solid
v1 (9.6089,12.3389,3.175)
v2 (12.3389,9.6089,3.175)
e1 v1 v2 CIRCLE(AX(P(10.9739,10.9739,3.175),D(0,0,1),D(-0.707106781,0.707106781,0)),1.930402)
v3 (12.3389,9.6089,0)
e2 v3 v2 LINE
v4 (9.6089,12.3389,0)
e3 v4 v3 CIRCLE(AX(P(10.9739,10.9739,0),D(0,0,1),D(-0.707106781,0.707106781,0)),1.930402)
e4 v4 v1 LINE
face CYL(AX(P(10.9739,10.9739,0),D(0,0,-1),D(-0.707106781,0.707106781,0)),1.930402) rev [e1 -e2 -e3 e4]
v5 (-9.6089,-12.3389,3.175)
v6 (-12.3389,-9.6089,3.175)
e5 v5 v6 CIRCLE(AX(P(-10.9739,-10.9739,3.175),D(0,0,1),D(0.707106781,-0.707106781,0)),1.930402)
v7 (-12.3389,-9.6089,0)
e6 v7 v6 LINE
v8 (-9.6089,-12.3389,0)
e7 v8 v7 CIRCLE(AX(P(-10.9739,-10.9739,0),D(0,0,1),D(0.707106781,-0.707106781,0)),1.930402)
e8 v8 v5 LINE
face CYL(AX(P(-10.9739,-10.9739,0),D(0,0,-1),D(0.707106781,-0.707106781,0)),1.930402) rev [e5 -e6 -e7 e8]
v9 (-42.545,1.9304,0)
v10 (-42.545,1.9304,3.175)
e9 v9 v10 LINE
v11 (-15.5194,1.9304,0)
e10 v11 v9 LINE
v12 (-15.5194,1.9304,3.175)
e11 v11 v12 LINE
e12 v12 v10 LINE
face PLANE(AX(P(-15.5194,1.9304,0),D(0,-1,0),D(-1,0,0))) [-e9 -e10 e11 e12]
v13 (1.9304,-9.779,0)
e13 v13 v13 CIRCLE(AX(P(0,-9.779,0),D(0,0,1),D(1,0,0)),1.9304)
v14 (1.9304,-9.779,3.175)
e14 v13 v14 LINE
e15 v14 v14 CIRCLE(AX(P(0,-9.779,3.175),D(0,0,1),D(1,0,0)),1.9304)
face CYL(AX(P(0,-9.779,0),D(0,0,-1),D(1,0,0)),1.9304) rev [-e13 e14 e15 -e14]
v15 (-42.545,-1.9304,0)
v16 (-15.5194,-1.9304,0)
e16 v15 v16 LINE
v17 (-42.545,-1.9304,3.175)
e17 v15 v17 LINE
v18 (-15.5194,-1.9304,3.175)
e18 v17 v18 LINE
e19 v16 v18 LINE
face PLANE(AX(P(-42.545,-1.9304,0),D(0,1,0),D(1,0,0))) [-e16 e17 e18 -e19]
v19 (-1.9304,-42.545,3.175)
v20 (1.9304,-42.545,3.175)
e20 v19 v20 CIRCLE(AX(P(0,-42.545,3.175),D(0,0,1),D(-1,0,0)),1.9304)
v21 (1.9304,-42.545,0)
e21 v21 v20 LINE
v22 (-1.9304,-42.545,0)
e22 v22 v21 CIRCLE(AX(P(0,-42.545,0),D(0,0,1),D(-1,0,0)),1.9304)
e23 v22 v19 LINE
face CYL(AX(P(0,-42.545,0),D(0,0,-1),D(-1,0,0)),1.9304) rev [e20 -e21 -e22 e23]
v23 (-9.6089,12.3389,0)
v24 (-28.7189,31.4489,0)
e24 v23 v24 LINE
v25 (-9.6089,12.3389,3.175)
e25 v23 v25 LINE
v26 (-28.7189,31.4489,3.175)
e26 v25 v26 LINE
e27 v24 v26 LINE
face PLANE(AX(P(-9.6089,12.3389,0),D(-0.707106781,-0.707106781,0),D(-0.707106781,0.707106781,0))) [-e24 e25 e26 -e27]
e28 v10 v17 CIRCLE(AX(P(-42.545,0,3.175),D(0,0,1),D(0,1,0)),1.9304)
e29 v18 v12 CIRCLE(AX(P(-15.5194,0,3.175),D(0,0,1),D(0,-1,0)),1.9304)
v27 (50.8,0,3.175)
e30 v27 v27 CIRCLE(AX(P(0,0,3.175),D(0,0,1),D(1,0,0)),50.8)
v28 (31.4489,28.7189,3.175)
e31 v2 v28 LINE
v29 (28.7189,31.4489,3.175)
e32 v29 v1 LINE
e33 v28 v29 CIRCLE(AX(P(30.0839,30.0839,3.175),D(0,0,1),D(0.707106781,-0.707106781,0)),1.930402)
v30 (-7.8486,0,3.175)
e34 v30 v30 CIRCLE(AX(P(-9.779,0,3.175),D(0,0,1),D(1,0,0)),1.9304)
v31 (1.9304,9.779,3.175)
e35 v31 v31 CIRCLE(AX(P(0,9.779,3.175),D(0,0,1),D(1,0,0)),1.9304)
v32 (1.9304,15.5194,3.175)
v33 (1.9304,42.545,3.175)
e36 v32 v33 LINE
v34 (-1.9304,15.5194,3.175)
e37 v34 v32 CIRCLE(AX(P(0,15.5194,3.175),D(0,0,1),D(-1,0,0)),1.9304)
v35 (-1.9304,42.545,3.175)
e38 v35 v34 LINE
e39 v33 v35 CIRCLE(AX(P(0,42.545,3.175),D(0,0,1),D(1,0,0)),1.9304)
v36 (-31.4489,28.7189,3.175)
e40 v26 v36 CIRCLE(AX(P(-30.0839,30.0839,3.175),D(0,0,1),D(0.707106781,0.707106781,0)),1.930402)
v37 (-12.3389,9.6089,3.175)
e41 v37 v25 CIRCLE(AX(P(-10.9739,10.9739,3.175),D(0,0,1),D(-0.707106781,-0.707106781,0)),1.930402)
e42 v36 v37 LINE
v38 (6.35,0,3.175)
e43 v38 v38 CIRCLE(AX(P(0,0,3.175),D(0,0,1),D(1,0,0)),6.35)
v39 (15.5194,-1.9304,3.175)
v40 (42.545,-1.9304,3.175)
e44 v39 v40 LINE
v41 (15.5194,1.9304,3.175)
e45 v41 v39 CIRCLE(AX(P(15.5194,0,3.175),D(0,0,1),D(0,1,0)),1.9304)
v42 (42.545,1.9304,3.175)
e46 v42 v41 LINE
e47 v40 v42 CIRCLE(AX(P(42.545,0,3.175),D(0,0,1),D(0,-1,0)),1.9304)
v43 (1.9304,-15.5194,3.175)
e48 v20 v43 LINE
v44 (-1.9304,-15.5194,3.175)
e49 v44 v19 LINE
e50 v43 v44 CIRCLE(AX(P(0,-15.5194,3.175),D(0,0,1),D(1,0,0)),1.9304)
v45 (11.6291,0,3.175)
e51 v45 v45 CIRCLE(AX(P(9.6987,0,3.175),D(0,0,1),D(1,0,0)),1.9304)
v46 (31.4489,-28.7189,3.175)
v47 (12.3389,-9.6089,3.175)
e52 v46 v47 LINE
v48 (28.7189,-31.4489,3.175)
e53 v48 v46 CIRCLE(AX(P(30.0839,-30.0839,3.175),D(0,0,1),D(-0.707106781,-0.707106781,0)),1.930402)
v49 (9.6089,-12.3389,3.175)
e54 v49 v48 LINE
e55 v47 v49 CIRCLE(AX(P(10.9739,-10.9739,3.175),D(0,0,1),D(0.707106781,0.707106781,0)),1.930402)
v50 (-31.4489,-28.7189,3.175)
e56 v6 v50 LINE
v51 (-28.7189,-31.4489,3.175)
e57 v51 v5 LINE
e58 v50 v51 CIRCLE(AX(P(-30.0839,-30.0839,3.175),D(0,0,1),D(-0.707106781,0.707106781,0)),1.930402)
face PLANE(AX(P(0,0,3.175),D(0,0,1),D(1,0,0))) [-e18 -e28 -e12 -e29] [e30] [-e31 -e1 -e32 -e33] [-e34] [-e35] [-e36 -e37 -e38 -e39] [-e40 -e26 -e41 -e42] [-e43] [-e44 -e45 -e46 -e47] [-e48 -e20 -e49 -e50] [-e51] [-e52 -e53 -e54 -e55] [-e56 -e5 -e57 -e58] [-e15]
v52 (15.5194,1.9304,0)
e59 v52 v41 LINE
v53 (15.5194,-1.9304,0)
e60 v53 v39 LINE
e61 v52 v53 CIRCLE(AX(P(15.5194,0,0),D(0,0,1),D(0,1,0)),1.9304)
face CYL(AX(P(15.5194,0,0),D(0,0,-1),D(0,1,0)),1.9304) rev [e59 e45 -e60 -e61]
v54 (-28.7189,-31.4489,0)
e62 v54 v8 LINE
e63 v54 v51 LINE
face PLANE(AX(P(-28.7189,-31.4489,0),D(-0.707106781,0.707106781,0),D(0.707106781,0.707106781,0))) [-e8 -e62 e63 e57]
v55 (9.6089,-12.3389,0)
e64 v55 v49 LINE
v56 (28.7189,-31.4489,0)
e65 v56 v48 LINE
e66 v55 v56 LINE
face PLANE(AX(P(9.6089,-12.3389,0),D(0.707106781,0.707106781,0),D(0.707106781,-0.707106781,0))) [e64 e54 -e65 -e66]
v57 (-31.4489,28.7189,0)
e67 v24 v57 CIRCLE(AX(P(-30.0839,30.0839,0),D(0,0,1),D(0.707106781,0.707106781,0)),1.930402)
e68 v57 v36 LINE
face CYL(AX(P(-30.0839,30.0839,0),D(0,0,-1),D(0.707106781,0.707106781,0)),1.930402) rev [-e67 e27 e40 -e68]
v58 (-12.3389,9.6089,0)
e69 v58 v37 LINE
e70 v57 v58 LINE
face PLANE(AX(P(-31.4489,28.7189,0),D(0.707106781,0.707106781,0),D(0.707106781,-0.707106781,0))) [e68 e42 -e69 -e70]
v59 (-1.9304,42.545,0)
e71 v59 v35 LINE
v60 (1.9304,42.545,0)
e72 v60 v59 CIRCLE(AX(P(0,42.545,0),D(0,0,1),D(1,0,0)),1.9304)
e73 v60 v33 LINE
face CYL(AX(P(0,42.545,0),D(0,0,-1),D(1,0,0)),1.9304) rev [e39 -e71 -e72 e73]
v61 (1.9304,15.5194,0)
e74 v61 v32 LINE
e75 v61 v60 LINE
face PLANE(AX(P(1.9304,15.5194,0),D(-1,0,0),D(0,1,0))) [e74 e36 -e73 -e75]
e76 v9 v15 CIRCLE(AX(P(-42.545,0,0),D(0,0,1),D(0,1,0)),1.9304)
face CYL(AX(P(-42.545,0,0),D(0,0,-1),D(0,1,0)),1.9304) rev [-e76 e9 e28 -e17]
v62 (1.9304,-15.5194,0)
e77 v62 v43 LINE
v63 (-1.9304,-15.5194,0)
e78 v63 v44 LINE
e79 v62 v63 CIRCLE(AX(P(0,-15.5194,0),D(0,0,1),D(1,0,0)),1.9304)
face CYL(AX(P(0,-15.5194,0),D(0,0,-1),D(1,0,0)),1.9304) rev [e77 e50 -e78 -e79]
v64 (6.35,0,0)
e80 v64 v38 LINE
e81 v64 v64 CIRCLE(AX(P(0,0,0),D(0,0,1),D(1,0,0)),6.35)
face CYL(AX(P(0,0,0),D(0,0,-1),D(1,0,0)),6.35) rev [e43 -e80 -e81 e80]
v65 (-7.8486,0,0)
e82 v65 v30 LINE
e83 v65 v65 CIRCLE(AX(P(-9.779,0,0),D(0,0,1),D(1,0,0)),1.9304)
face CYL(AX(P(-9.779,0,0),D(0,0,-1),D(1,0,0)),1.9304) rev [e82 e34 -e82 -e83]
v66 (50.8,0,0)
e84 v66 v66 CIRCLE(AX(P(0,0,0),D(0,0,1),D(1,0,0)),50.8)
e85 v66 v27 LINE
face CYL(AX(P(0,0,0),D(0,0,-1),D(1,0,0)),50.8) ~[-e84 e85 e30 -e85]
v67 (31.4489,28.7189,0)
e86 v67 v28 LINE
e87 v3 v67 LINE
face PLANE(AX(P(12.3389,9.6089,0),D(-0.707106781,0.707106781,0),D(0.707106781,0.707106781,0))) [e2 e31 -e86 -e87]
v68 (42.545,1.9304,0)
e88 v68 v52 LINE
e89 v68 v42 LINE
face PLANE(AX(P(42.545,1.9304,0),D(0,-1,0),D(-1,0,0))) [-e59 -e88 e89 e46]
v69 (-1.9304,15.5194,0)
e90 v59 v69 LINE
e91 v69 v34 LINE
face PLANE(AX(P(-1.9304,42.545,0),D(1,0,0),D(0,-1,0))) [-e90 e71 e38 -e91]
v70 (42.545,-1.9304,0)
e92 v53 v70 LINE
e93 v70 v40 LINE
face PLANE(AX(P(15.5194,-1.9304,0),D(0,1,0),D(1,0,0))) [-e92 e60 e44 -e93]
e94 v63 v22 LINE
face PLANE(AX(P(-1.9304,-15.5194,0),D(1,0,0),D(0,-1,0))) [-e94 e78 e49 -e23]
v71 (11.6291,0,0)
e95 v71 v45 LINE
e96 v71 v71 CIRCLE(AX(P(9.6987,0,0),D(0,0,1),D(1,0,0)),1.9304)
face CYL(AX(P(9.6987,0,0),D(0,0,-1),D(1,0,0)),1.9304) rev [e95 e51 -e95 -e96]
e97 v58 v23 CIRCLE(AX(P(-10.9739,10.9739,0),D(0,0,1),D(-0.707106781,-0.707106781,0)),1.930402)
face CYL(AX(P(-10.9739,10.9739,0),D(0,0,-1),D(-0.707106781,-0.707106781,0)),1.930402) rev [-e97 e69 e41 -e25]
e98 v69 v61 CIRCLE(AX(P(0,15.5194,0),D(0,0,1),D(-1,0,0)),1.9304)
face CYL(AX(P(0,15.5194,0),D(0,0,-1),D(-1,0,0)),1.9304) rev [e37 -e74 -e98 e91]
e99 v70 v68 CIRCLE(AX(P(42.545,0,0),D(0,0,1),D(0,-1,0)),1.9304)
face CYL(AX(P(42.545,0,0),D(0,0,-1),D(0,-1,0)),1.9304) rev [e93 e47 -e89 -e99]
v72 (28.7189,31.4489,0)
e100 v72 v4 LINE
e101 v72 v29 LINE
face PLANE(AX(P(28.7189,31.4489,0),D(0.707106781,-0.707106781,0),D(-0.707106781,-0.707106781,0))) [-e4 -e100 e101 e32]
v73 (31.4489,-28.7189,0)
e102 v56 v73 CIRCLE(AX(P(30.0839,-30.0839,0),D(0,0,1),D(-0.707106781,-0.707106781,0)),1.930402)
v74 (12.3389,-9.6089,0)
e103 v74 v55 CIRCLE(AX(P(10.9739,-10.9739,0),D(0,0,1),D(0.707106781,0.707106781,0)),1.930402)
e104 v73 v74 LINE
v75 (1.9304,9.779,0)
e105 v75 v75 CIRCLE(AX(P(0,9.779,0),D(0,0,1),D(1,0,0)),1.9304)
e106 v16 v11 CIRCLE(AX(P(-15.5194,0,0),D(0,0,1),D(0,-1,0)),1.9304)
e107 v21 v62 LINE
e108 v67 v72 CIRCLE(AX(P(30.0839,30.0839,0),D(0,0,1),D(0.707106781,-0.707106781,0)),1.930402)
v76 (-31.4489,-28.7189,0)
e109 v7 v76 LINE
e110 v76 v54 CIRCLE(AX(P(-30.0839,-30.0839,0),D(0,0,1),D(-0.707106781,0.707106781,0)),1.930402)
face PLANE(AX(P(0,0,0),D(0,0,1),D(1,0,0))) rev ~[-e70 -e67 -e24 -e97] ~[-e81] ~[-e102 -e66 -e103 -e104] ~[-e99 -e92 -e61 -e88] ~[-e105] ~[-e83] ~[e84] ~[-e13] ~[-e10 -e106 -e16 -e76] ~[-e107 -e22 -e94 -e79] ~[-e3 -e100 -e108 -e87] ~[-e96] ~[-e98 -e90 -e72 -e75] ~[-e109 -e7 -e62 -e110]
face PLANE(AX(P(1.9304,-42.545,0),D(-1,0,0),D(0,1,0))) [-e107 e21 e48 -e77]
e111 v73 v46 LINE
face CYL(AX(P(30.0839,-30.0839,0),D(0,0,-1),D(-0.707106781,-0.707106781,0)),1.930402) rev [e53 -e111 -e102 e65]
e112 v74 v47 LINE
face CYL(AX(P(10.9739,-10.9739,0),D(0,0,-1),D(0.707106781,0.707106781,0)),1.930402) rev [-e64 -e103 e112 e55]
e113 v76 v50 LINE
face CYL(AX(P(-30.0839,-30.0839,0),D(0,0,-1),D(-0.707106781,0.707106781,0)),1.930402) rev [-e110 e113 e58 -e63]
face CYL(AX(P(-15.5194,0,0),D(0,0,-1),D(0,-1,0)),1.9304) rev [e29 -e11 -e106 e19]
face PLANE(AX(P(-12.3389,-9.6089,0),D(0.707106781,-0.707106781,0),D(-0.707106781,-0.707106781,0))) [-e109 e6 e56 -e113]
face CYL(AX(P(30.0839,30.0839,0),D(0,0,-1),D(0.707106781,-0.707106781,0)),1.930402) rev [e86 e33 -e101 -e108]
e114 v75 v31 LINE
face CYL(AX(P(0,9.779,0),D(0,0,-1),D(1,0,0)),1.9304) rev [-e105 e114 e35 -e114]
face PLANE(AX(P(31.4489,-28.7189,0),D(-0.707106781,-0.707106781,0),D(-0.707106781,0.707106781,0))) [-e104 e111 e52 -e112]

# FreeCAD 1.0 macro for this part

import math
import FreeCAD as App
import Part
import Sketcher

V = App.Vector
Q = App.Units.Quantity

doc = App.newDocument("Part")
body = doc.addObject("PartDesign::Body", "Body")

sketch1 = doc.addObject("Sketcher::SketchObject", "Sketch")
body.addObject(sketch1)
sketch1.AttachmentSupport = (doc.XY_Plane, [""])
sketch1.MapMode = "FlatFace"
sketch1.addGeometry(Part.Circle(V(0, 0, 0), V(0, 0, 1), 50.8), False)
sketch1.addGeometry(Part.LineSegment(V(-1.9, -42.5, 0), V(-1.9, -15.5, 0)), False)
sketch1.addGeometry(Part.ArcOfCircle(Part.Circle(V(0, -15.5, 0), V(0, 0, 1), 1.9), math.radians(0), math.radians(180)), False)
sketch1.addGeometry(Part.LineSegment(V(1.9, -15.5, 0), V(1.9, -42.5, 0)), False)
sketch1.addGeometry(Part.ArcOfCircle(Part.Circle(V(0, -42.5, 0), V(0, 0, 1), 1.9), math.radians(180), math.radians(360)), False)
sketch1.addGeometry(Part.LineSegment(V(-15.5, -1.9, 0), V(-42.5, -1.9, 0)), False)
sketch1.addGeometry(Part.ArcOfCircle(Part.Circle(V(-42.5, 0, 0), V(0, 0, 1), 1.9), math.radians(90), math.radians(270)), False)
sketch1.addGeometry(Part.LineSegment(V(-42.5, 1.9, 0), V(-15.5, 1.9, 0)), False)
sketch1.addGeometry(Part.ArcOfCircle(Part.Circle(V(-15.5, 0, 0), V(0, 0, 1), 1.9), math.radians(-90), math.radians(90)), False)
sketch1.addGeometry(Part.LineSegment(V(-9.6, -12.3, 0), V(-28.7, -31.4, 0)), False)
sketch1.addGeometry(Part.ArcOfCircle(Part.Circle(V(-30.1, -30.1, 0), V(0, 0, 1), 1.9), math.radians(135), math.radians(315)), False)
sketch1.addGeometry(Part.LineSegment(V(-31.4, -28.7, 0), V(-12.3, -9.6, 0)), False)
sketch1.addGeometry(Part.ArcOfCircle(Part.Circle(V(-11, -11, 0), V(0, 0, 1), 1.9), math.radians(-45), math.radians(135)), False)
sketch1.addGeometry(Part.Circle(V(0, -9.8, 0), V(0, 0, 1), 1.9), False)
sketch1.addGeometry(Part.Circle(V(-9.8, 0, 0), V(0, 0, 1), 1.9), False)
sketch1.addGeometry(Part.Circle(V(0, 0, 0), V(0, 0, 1), 6.3), False)
sketch1.addGeometry(Part.LineSegment(V(12.3, -9.6, 0), V(31.4, -28.7, 0)), False)
sketch1.addGeometry(Part.ArcOfCircle(Part.Circle(V(30.1, -30.1, 0), V(0, 0, 1), 1.9), math.radians(-135), math.radians(45)), False)
sketch1.addGeometry(Part.LineSegment(V(28.7, -31.4, 0), V(9.6, -12.3, 0)), False)
sketch1.addGeometry(Part.ArcOfCircle(Part.Circle(V(11, -11, 0), V(0, 0, 1), 1.9), math.radians(45), math.radians(225)), False)
sketch1.addGeometry(Part.Circle(V(9.7, 0, 0), V(0, 0, 1), 1.9), False)
sketch1.addGeometry(Part.LineSegment(V(15.5, 1.9, 0), V(42.5, 1.9, 0)), False)
sketch1.addGeometry(Part.ArcOfCircle(Part.Circle(V(42.5, 0, 0), V(0, 0, 1), 1.9), math.radians(-90), math.radians(90)), False)
sketch1.addGeometry(Part.LineSegment(V(42.5, -1.9, 0), V(15.5, -1.9, 0)), False)
sketch1.addGeometry(Part.ArcOfCircle(Part.Circle(V(15.5, 0, 0), V(0, 0, 1), 1.9), math.radians(90), math.radians(270)), False)
sketch1.addGeometry(Part.Circle(V(0, 9.8, 0), V(0, 0, 1), 1.9), False)
sketch1.addGeometry(Part.LineSegment(V(-12.3, 9.6, 0), V(-31.4, 28.7, 0)), False)
sketch1.addGeometry(Part.ArcOfCircle(Part.Circle(V(-30.1, 30.1, 0), V(0, 0, 1), 1.9), math.radians(45), math.radians(225)), False)
sketch1.addGeometry(Part.LineSegment(V(-28.7, 31.4, 0), V(-9.6, 12.3, 0)), False)
sketch1.addGeometry(Part.ArcOfCircle(Part.Circle(V(-11, 11, 0), V(0, 0, 1), 1.9), math.radians(-135), math.radians(45)), False)
sketch1.addGeometry(Part.LineSegment(V(-1.9, 15.5, 0), V(-1.9, 42.5, 0)), False)
sketch1.addGeometry(Part.ArcOfCircle(Part.Circle(V(0, 42.5, 0), V(0, 0, 1), 1.9), math.radians(0), math.radians(180)), False)
sketch1.addGeometry(Part.LineSegment(V(1.9, 42.5, 0), V(1.9, 15.5, 0)), False)
sketch1.addGeometry(Part.ArcOfCircle(Part.Circle(V(0, 15.5, 0), V(0, 0, 1), 1.9), math.radians(180), math.radians(360)), False)
sketch1.addGeometry(Part.LineSegment(V(9.6, 12.3, 0), V(28.7, 31.4, 0)), False)
sketch1.addGeometry(Part.ArcOfCircle(Part.Circle(V(30.1, 30.1, 0), V(0, 0, 1), 1.9), math.radians(-45), math.radians(135)), False)
sketch1.addGeometry(Part.LineSegment(V(31.4, 28.7, 0), V(12.3, 9.6, 0)), False)
sketch1.addGeometry(Part.ArcOfCircle(Part.Circle(V(11, 11, 0), V(0, 0, 1), 1.9), math.radians(135), math.radians(315)), False)
sketch1.addConstraint(Sketcher.Constraint("Tangent", 1, 2, 2, 2))
sketch1.addConstraint(Sketcher.Constraint("Tangent", 2, 1, 3, 1))
sketch1.addConstraint(Sketcher.Constraint("Tangent", 3, 2, 4, 2))
sketch1.addConstraint(Sketcher.Constraint("Tangent", 4, 1, 1, 1))
sketch1.addConstraint(Sketcher.Constraint("Tangent", 5, 2, 6, 2))
sketch1.addConstraint(Sketcher.Constraint("Tangent", 6, 1, 7, 1))
sketch1.addConstraint(Sketcher.Constraint("Tangent", 7, 2, 8, 2))
sketch1.addConstraint(Sketcher.Constraint("Tangent", 8, 1, 5, 1))
sketch1.addConstraint(Sketcher.Constraint("Tangent", 9, 2, 10, 2))
sketch1.addConstraint(Sketcher.Constraint("Tangent", 10, 1, 11, 1))
sketch1.addConstraint(Sketcher.Constraint("Tangent", 11, 2, 12, 2))
sketch1.addConstraint(Sketcher.Constraint("Tangent", 12, 1, 9, 1))
sketch1.addConstraint(Sketcher.Constraint("Tangent", 16, 2, 17, 2))
sketch1.addConstraint(Sketcher.Constraint("Tangent", 17, 1, 18, 1))
sketch1.addConstraint(Sketcher.Constraint("Tangent", 18, 2, 19, 2))
sketch1.addConstraint(Sketcher.Constraint("Tangent", 19, 1, 16, 1))
sketch1.addConstraint(Sketcher.Constraint("Tangent", 21, 2, 22, 2))
sketch1.addConstraint(Sketcher.Constraint("Tangent", 22, 1, 23, 1))
sketch1.addConstraint(Sketcher.Constraint("Tangent", 23, 2, 24, 2))
sketch1.addConstraint(Sketcher.Constraint("Tangent", 24, 1, 21, 1))
sketch1.addConstraint(Sketcher.Constraint("Tangent", 26, 2, 27, 2))
sketch1.addConstraint(Sketcher.Constraint("Tangent", 27, 1, 28, 1))
sketch1.addConstraint(Sketcher.Constraint("Tangent", 28, 2, 29, 2))
sketch1.addConstraint(Sketcher.Constraint("Tangent", 29, 1, 26, 1))
sketch1.addConstraint(Sketcher.Constraint("Tangent", 30, 2, 31, 2))
sketch1.addConstraint(Sketcher.Constraint("Tangent", 31, 1, 32, 1))
sketch1.addConstraint(Sketcher.Constraint("Tangent", 32, 2, 33, 2))
sketch1.addConstraint(Sketcher.Constraint("Tangent", 33, 1, 30, 1))
sketch1.addConstraint(Sketcher.Constraint("Tangent", 34, 2, 35, 2))
sketch1.addConstraint(Sketcher.Constraint("Tangent", 35, 1, 36, 1))
sketch1.addConstraint(Sketcher.Constraint("Tangent", 36, 2, 37, 2))
sketch1.addConstraint(Sketcher.Constraint("Tangent", 37, 1, 34, 1))
sketch1.addConstraint(Sketcher.Constraint("Vertical", 1))
sketch1.addConstraint(Sketcher.Constraint("Vertical", 3))
sketch1.addConstraint(Sketcher.Constraint("Horizontal", 5))
sketch1.addConstraint(Sketcher.Constraint("Horizontal", 7))
sketch1.addConstraint(Sketcher.Constraint("Horizontal", 21))
sketch1.addConstraint(Sketcher.Constraint("Horizontal", 23))
sketch1.addConstraint(Sketcher.Constraint("Vertical", 30))
sketch1.addConstraint(Sketcher.Constraint("Vertical", 32))
sketch1.addConstraint(Sketcher.Constraint("Coincident", 0, 3, -1, 1))
sketch1.addConstraint(Sketcher.Constraint("Coincident", 15, 3, -1, 1))
sketch1.addConstraint(Sketcher.Constraint("Equal", 4, 6))
sketch1.addConstraint(Sketcher.Constraint("Equal", 8, 10))
sketch1.addConstraint(Sketcher.Constraint("Equal", 10, 12))
sketch1.addConstraint(Sketcher.Constraint("Equal", 12, 13))
sketch1.addConstraint(Sketcher.Constraint("Equal", 13, 14))
sketch1.addConstraint(Sketcher.Constraint("Equal", 14, 17))
sketch1.addConstraint(Sketcher.Constraint("Equal", 17, 19))
sketch1.addConstraint(Sketcher.Constraint("Equal", 19, 20))
sketch1.addConstraint(Sketcher.Constraint("Equal", 20, 22))
sketch1.addConstraint(Sketcher.Constraint("Equal", 24, 25))
sketch1.addConstraint(Sketcher.Constraint("Equal", 25, 27))
sketch1.addConstraint(Sketcher.Constraint("Equal", 27, 29))
sketch1.addConstraint(Sketcher.Constraint("Equal", 29, 31))
sketch1.addConstraint(Sketcher.Constraint("Equal", 33, 35))
sketch1.addConstraint(Sketcher.Constraint("Equal", 35, 37))
sketch1.addConstraint(Sketcher.Constraint("Symmetric", 6, 3, 22, 3, -1, 1))
sketch1.addConstraint(Sketcher.Constraint("Symmetric", 13, 3, 25, 3, -1, 1))
sketch1.addConstraint(Sketcher.Constraint("Symmetric", 17, 3, 27, 3, -1, 1))
sketch1.addConstraint(Sketcher.Constraint("Symmetric", 19, 3, 29, 3, -1, 1))
sketch1.addConstraint(Sketcher.Constraint("Symmetric", 4, 3, 31, 3, -1, 1))
sketch1.addConstraint(Sketcher.Constraint("Symmetric", 10, 3, 35, 3, -1, 1))
sketch1.addConstraint(Sketcher.Constraint("Symmetric", 12, 3, 37, 3, -1, 1))
sketch1.addConstraint(Sketcher.Constraint("Symmetric", 10, 3, 17, 3, -2))
sketch1.addConstraint(Sketcher.Constraint("Symmetric", 12, 3, 19, 3, -2))
sketch1.addConstraint(Sketcher.Constraint("Symmetric", 8, 3, 24, 3, -2))
sketch1.addConstraint(Sketcher.Constraint("Symmetric", 2, 3, 33, 3, -1))
sketch1.addConstraint(Sketcher.Constraint("PointOnObject", 13, 3, -2))
sketch1.addConstraint(Sketcher.Constraint("PointOnObject", 14, 3, -1))
sketch1.addConstraint(Sketcher.Constraint("PointOnObject", 20, 3, -1))
sketch1.addConstraint(Sketcher.Constraint("Perpendicular", 11, 16))
sketch1.addConstraint(Sketcher.Constraint("Equal", 23, 1))
sketch1.addConstraint(Sketcher.Constraint("Diameter", 0, Q("4 in")))
sketch1.addConstraint(Sketcher.Constraint("Diameter", 15, Q("0.5 in")))
sketch1.addConstraint(Sketcher.Constraint("Diameter", 13, Q("0.152 in")))
sketch1.addConstraint(Sketcher.Constraint("DistanceX", 5, 2, 5, 1, Q("1.064 in")))
sketch1.addConstraint(Sketcher.Constraint("DistanceY", 4, 3, 13, 3, Q("1.29 in")))
sketch1.addConstraint(Sketcher.Constraint("DistanceX", 5, 2, 14, 3, Q("1.29 in")))
sketch1.addConstraint(Sketcher.Constraint("Distance", 9, Q("1.064 in")))
sketch1.addConstraint(Sketcher.Constraint("DistanceY", 2, 3, -1, 1, Q("0.611 in")))
sketch1.addConstraint(Sketcher.Constraint("DistanceX", 6, 3, -1, 1, Q("1.675 in")))
sketch1.addConstraint(Sketcher.Constraint("DistanceX", 10, 3, -1, 1, Q("1.1844 in")))
sketch1.addConstraint(Sketcher.Constraint("DistanceY", 10, 3, -1, 1, Q("1.1844 in")))
sketch1.addConstraint(Sketcher.Constraint("DistanceX", 20, 3, 19, 3, Q("0.0502 in")))
pad1 = doc.addObject("PartDesign::Pad", "Pad")
body.addObject(pad1)
pad1.Profile = sketch1
pad1.Length = Q("0.125 in")

doc.recompute()
